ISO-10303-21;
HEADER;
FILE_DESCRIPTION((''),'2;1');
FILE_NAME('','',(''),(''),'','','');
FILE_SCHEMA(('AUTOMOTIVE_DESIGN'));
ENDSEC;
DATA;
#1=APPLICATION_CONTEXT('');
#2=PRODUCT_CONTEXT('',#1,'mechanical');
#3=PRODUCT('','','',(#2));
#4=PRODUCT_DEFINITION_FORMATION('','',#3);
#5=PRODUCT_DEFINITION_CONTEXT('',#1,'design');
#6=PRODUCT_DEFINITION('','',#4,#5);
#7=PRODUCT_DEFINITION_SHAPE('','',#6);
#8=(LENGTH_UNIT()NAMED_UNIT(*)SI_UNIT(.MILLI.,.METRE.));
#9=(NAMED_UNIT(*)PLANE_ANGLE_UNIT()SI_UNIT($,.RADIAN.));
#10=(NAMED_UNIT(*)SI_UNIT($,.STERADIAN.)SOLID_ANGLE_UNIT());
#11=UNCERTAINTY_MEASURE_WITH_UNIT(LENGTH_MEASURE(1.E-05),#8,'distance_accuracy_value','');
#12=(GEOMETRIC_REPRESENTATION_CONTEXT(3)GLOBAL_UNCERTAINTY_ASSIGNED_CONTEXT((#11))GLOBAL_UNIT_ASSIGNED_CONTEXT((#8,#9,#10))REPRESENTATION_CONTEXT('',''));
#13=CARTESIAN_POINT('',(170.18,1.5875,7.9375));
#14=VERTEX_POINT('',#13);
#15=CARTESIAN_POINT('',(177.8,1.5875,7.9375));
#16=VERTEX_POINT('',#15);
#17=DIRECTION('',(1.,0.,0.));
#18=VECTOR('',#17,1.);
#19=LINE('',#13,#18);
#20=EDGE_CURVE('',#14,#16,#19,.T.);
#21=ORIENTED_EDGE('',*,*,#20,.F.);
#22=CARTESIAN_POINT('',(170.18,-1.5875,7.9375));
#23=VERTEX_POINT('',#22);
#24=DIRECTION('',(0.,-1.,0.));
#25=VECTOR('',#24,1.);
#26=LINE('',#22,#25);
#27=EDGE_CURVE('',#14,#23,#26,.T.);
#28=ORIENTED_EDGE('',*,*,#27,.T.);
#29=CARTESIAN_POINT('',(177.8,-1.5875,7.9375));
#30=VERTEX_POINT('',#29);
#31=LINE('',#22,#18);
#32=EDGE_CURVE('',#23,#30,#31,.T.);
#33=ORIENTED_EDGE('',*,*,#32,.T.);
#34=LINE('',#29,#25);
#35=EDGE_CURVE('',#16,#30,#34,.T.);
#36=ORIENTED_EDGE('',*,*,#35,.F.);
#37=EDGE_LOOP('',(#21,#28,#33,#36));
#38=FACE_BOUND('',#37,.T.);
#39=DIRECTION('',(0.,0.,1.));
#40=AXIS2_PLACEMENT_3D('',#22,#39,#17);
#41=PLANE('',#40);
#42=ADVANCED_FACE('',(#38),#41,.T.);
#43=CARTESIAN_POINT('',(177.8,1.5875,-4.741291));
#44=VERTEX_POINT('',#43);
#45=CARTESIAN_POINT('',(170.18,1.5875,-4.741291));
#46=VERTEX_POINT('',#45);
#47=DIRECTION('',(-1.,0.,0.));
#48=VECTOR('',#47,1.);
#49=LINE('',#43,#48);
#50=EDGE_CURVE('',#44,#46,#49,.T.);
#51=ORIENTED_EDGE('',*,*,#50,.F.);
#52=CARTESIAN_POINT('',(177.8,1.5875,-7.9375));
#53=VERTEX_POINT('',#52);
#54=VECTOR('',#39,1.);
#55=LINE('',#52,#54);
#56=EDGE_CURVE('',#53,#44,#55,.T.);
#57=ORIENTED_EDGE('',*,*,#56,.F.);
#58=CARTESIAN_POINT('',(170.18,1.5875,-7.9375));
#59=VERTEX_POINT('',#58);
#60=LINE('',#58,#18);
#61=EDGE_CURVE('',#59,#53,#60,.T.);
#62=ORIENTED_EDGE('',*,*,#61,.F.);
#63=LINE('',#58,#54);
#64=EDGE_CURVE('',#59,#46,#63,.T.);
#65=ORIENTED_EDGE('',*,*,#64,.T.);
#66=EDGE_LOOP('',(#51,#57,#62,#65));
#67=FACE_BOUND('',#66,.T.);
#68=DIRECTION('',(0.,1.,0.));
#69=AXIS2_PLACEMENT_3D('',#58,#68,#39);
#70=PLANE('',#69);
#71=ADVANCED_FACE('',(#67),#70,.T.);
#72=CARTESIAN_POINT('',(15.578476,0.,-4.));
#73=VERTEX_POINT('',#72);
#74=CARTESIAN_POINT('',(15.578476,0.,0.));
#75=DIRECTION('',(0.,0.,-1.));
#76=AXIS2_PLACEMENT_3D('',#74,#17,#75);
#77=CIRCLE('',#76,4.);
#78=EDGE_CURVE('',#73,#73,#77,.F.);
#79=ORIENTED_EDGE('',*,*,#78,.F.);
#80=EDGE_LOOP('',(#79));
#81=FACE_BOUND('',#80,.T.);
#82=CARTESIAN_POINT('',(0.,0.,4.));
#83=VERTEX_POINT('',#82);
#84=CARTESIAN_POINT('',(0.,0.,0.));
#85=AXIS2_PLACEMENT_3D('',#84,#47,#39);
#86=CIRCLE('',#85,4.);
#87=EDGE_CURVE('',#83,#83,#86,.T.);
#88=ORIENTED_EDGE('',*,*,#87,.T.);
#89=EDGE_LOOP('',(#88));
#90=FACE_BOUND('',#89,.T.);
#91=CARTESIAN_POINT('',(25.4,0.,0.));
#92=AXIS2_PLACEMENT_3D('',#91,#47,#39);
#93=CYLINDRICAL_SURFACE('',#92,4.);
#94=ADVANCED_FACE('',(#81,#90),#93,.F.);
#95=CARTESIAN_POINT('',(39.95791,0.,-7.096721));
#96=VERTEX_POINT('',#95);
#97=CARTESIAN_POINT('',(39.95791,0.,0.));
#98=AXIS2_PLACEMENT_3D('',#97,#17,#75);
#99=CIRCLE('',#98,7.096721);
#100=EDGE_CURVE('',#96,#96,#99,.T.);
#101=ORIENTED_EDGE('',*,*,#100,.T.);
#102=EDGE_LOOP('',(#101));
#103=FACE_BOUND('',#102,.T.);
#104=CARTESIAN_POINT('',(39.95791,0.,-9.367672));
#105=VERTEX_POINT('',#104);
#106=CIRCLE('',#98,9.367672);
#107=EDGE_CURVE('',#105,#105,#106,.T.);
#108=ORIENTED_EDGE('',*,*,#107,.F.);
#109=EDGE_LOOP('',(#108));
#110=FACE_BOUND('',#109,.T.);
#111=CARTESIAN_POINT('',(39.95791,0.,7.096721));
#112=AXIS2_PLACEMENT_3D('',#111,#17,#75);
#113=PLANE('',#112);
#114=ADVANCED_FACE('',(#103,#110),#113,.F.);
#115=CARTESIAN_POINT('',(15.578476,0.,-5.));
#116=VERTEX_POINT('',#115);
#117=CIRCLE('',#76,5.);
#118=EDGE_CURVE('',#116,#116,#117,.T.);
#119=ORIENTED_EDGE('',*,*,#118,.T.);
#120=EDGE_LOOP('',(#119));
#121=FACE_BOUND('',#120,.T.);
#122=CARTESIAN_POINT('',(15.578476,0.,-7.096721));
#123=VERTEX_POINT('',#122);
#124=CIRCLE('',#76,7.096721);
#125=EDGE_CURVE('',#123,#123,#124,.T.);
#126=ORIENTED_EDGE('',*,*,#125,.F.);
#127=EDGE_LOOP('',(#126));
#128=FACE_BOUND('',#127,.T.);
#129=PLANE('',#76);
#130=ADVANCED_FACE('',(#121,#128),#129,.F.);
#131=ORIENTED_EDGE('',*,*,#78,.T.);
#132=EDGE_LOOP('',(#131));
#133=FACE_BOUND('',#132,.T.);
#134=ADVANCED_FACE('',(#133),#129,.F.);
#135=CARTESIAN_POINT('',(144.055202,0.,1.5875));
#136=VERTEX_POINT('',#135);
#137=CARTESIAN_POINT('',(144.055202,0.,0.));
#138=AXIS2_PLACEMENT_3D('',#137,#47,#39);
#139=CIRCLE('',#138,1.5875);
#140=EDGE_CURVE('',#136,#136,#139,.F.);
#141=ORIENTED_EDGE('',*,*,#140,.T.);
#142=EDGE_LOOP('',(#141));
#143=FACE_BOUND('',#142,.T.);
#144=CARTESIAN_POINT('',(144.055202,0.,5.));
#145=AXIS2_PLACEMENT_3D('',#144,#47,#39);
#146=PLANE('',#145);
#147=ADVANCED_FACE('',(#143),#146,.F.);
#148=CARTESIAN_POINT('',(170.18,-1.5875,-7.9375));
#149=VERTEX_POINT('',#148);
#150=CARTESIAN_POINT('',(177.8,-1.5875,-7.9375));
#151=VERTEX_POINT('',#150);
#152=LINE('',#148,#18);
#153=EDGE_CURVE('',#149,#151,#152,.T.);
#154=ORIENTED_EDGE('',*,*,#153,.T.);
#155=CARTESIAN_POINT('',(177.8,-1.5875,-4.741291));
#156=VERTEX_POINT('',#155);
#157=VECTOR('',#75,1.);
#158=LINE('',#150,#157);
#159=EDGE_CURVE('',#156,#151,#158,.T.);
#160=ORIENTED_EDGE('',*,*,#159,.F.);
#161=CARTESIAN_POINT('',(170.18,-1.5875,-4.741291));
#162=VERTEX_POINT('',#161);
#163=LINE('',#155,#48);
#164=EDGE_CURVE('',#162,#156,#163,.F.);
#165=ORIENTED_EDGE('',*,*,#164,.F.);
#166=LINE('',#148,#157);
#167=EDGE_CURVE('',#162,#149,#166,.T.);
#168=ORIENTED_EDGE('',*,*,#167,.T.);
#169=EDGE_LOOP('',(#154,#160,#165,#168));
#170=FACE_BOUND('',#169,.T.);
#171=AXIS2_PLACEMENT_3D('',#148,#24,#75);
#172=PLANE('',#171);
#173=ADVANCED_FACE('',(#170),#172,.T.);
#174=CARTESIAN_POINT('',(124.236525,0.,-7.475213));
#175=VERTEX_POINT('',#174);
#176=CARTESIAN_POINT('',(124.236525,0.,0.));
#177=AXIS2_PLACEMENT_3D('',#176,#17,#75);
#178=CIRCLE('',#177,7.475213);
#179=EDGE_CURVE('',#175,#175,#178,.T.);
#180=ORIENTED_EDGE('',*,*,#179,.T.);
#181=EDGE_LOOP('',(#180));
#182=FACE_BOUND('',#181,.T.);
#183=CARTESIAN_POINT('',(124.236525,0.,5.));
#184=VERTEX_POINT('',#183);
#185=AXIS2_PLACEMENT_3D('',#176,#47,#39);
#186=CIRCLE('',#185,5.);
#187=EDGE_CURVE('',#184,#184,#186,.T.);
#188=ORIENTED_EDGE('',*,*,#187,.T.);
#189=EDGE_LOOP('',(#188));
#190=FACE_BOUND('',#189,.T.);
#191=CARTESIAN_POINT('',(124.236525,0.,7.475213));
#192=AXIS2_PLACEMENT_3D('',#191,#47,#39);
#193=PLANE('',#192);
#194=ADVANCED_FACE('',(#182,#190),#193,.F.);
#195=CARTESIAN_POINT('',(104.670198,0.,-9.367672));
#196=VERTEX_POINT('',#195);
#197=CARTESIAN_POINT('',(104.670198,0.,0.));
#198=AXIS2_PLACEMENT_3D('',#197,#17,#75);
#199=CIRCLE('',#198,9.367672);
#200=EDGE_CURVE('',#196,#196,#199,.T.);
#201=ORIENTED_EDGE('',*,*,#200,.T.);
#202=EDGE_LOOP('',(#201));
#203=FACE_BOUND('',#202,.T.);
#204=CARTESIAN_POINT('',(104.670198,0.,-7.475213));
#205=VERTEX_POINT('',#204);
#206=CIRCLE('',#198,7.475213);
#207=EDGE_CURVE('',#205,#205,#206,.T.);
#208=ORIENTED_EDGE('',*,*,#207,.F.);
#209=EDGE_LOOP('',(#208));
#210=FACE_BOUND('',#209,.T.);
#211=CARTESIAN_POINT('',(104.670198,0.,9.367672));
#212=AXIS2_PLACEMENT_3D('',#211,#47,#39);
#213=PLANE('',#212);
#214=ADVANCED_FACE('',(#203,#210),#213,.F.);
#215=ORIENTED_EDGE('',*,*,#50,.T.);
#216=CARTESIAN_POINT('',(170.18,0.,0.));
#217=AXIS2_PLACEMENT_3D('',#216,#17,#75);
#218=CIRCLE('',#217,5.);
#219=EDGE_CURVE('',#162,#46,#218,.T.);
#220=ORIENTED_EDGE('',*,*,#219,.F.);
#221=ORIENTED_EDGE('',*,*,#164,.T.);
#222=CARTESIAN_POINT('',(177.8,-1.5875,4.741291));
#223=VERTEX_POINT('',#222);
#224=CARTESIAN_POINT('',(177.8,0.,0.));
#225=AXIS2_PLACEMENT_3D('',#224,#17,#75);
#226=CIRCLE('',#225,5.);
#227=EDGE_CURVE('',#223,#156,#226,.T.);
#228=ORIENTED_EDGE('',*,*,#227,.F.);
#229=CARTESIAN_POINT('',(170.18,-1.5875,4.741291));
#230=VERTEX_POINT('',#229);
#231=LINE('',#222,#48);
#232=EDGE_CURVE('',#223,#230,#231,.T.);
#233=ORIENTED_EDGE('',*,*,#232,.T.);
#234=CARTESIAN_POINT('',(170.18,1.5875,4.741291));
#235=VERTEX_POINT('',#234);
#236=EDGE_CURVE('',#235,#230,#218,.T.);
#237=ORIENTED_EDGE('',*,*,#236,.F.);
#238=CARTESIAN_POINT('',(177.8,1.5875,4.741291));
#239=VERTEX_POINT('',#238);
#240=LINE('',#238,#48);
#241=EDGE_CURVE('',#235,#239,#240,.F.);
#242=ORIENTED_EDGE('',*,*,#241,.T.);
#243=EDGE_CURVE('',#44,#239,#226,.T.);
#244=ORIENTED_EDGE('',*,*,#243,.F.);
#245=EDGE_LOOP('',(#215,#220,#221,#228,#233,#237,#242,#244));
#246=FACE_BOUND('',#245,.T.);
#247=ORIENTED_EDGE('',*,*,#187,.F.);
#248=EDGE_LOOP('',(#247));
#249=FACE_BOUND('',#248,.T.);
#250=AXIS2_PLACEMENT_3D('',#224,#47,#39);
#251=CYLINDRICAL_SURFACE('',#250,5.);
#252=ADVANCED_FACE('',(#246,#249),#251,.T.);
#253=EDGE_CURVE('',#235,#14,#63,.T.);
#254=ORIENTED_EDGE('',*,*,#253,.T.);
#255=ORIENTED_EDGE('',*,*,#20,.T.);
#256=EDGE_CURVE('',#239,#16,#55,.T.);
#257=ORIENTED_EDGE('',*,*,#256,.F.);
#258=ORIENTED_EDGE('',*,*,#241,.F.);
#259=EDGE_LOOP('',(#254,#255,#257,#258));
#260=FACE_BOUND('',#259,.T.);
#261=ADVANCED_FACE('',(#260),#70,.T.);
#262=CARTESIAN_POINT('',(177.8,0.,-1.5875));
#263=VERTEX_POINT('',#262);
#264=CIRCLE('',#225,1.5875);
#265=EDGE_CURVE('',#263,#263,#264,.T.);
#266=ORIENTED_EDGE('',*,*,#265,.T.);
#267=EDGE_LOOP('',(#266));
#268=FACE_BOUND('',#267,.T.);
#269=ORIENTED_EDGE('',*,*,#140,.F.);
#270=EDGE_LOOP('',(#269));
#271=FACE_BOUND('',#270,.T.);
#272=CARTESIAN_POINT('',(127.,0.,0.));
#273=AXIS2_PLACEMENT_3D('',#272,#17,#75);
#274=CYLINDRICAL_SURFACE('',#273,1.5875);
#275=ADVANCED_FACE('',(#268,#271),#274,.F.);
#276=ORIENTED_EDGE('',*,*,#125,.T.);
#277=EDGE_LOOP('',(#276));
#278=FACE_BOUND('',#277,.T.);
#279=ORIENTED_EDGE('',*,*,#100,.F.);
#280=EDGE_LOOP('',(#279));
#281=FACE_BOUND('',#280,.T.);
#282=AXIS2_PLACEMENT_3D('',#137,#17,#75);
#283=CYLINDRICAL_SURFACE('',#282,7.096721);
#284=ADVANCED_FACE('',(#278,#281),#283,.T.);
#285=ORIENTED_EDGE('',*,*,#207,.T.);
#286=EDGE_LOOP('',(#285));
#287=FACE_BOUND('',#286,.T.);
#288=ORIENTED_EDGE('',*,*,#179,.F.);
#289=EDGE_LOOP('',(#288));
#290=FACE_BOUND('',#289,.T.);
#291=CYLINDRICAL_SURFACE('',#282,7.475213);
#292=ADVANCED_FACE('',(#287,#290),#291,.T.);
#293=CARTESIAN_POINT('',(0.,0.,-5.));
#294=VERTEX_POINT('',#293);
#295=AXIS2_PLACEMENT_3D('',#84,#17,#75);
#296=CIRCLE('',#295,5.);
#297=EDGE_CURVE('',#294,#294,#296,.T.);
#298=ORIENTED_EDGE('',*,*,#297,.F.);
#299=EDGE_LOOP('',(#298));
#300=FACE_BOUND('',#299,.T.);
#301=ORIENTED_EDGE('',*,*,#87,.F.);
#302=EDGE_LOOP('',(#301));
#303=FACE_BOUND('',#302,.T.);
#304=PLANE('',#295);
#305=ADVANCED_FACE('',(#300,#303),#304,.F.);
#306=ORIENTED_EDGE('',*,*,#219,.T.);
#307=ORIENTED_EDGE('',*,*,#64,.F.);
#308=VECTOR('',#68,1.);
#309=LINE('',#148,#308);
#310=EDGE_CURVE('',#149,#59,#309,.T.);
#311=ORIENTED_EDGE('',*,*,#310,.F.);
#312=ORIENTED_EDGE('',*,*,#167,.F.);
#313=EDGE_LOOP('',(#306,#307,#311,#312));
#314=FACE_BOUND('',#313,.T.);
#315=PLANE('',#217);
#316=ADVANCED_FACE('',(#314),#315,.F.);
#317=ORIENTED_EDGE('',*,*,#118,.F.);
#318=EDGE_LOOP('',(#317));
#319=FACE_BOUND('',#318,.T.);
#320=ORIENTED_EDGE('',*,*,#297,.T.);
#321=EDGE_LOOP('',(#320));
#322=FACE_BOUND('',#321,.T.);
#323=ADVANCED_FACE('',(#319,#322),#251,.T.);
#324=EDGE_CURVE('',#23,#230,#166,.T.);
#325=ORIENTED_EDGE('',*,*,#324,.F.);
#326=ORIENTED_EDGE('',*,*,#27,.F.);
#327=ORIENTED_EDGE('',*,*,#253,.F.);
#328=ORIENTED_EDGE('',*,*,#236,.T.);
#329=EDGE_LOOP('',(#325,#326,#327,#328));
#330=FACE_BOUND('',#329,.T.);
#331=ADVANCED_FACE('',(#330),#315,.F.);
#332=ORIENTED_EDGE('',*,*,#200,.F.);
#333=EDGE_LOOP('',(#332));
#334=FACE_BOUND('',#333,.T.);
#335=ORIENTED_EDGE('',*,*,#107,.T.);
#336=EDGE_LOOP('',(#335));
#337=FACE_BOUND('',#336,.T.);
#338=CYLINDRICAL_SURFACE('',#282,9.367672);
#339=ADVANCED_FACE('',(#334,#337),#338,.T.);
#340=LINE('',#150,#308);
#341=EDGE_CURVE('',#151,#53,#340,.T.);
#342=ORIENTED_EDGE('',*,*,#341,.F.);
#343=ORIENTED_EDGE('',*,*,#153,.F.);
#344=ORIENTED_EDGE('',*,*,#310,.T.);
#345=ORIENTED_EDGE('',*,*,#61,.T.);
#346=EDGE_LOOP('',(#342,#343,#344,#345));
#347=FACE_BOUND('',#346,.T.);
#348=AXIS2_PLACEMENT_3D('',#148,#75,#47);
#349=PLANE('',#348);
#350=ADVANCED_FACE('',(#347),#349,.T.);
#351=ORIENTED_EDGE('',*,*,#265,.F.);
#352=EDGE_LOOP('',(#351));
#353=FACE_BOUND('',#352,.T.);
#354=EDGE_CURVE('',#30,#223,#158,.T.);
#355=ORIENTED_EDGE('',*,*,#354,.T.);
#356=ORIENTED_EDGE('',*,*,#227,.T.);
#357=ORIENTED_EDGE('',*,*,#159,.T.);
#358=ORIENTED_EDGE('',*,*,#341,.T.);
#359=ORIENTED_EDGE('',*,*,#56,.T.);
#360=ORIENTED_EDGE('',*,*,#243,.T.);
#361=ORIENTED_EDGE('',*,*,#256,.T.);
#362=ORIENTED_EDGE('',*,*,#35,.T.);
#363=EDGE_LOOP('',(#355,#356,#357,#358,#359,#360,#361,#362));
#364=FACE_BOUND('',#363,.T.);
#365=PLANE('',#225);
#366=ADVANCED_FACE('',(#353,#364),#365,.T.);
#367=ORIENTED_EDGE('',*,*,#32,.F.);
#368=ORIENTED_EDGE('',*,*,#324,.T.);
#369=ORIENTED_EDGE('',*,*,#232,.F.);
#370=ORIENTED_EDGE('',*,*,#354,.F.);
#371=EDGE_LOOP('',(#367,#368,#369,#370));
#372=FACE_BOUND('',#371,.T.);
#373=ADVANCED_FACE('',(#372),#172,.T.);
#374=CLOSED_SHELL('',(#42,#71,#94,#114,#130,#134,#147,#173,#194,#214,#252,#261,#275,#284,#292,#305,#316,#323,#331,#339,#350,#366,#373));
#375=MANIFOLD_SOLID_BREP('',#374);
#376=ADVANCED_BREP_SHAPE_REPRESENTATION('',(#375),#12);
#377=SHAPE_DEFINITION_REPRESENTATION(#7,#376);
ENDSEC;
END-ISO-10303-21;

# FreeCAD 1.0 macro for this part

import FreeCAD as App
import Part
import Sketcher
from FreeCAD import Vector
Q = App.Units.Quantity


def add_polygon(sketch, points):
    """Adds a closed chain of lines whose ends are joined by coincident constraints."""
    first, n = sketch.GeometryCount, len(points)
    for a, b in zip(points, points[1:] + points[:1]):
        sketch.addGeometry(Part.LineSegment(App.Vector(*a, 0), App.Vector(*b, 0)), False)
    for i in range(n):
        sketch.addConstraint(Sketcher.Constraint("Coincident", first + i, 2, first + (i + 1) % n, 1))

doc = App.newDocument("Part")
body = doc.addObject("PartDesign::Body", "Body")

sketch1 = body.newObject("Sketcher::SketchObject", "Sketch")
sketch1.AttachmentSupport = (doc.getObject("YZ_Plane"), [""])
sketch1.MapMode = "FlatFace"
sketch1.addGeometry(Part.Circle(Vector(0, 0, 0), Vector(0, 0, 1), 5), False)
sketch1.addConstraint([
    Sketcher.Constraint("Coincident", 0, 3, -1, 1),
    Sketcher.Constraint("Diameter", 0, Q("10 mm")),
])
pad1 = body.newObject("PartDesign::Pad", "Pad")
pad1.Profile = sketch1
pad1.Length = Q("7 in")

sketch2 = body.newObject("Sketcher::SketchObject", "Sketch001")
sketch2.AttachmentSupport = (doc.getObject("YZ_Plane"), [""])
sketch2.MapMode = "FlatFace"
sketch2.AttachmentOffset = App.Placement(Vector(0, 0, 7 * 25.4), App.Rotation())
add_polygon(sketch2, [(1.6, 7.9), (-1.6, 7.9), (-1.6, -7.9), (1.6, -7.9)])
sketch2.addConstraint([
    Sketcher.Constraint("Horizontal", 0),
    Sketcher.Constraint("Vertical", 1),
    Sketcher.Constraint("Horizontal", 2),
    Sketcher.Constraint("Vertical", 3),
    Sketcher.Constraint("Symmetric", 0, 2, 2, 2, -1, 1),
    Sketcher.Constraint("DistanceX", 0, 2, 0, 1, Q("0.125 in")),
    Sketcher.Constraint("DistanceY", 1, 2, 1, 1, Q("0.625 in")),
])
pad2 = body.newObject("PartDesign::Pad", "Pad001")
pad2.Profile = sketch2
pad2.Length = Q("0.3 in")
pad2.Reversed = True

sketch3 = body.newObject("Sketcher::SketchObject", "Sketch002")
sketch3.AttachmentSupport = (doc.getObject("YZ_Plane"), [""])
sketch3.MapMode = "FlatFace"
sketch3.AttachmentOffset = App.Placement(Vector(0, 0, 7 * 25.4), App.Rotation())
sketch3.addGeometry(Part.Circle(Vector(0, 0, 0), Vector(0, 0, 1), 1.6), False)
sketch3.addConstraint([
    Sketcher.Constraint("Coincident", 0, 3, -1, 1),
    Sketcher.Constraint("Diameter", 0, Q("0.125 in")),
])
pocket1 = body.newObject("PartDesign::Pocket", "Pocket")
pocket1.Profile = sketch3
pocket1.Length = Q("2 in")

sketch4 = body.newObject("Sketcher::SketchObject", "Sketch003")
sketch4.AttachmentSupport = (doc.getObject("YZ_Plane"), [""])
sketch4.MapMode = "FlatFace"
sketch4.addGeometry(Part.Circle(Vector(0, 0, 0), Vector(0, 0, 1), 4), False)
sketch4.addConstraint([
    Sketcher.Constraint("Coincident", 0, 3, -1, 1),
    Sketcher.Constraint("Diameter", 0, Q("8 mm")),
])
pocket2 = body.newObject("PartDesign::Pocket", "Pocket001")
pocket2.Profile = sketch4
pocket2.Length = Q("1 in")
pocket2.Reversed = True

sketch5 = body.newObject("Sketcher::SketchObject", "Sketch004")
sketch5.AttachmentSupport = (doc.getObject("XZ_Plane"), [""])
sketch5.MapMode = "FlatFace"
add_polygon(sketch5, [(144.1, 0), (15.6, 0), (15.6, 7.1), (40, 7.1), (40, 9.4), (104.7, 9.4), (104.7, 7.5), (124.2, 7.5), (124.2, 5), (144.1, 5)])
sketch5.addConstraint([
    Sketcher.Constraint("Horizontal", 0),
    Sketcher.Constraint("Vertical", 1),
    Sketcher.Constraint("Horizontal", 2),
    Sketcher.Constraint("Vertical", 3),
    Sketcher.Constraint("Horizontal", 4),
    Sketcher.Constraint("Vertical", 5),
    Sketcher.Constraint("Horizontal", 6),
    Sketcher.Constraint("Vertical", 7),
    Sketcher.Constraint("Horizontal", 8),
    Sketcher.Constraint("Vertical", 9),
    Sketcher.Constraint("PointOnObject", 0, 2, -1),
    Sketcher.Constraint("DistanceY", 9, 2, 9, 1, Q("5 mm")),
    Sketcher.Constraint("DistanceX", 4, 1, 4, 2, Q("64.712288 mm")),
    Sketcher.Constraint("DistanceY", 1, 1, 1, 2, Q("7.096721 mm")),
    Sketcher.Constraint("DistanceY", 3, 1, 3, 2, Q("2.270951 mm")),
    Sketcher.Constraint("DistanceY", 5, 2, 5, 1, Q("1.892459 mm")),
    Sketcher.Constraint("DistanceX", -1, 1, 4, 2, Q("104.670198 mm")),
    Sketcher.Constraint("DistanceX", 0, 2, 0, 1, Q("128.476726 mm")),
    Sketcher.Constraint("DistanceX", 2, 1, 2, 2, Q("24.379434 mm")),
    Sketcher.Constraint("DistanceX", 6, 1, 6, 2, Q("19.566327 mm")),
])
revolution = body.newObject("PartDesign::Revolution", "Revolution")
revolution.Profile = sketch5
revolution.ReferenceAxis = (sketch5, ["H_Axis"])
revolution.Angle = 360

doc.recompute()
